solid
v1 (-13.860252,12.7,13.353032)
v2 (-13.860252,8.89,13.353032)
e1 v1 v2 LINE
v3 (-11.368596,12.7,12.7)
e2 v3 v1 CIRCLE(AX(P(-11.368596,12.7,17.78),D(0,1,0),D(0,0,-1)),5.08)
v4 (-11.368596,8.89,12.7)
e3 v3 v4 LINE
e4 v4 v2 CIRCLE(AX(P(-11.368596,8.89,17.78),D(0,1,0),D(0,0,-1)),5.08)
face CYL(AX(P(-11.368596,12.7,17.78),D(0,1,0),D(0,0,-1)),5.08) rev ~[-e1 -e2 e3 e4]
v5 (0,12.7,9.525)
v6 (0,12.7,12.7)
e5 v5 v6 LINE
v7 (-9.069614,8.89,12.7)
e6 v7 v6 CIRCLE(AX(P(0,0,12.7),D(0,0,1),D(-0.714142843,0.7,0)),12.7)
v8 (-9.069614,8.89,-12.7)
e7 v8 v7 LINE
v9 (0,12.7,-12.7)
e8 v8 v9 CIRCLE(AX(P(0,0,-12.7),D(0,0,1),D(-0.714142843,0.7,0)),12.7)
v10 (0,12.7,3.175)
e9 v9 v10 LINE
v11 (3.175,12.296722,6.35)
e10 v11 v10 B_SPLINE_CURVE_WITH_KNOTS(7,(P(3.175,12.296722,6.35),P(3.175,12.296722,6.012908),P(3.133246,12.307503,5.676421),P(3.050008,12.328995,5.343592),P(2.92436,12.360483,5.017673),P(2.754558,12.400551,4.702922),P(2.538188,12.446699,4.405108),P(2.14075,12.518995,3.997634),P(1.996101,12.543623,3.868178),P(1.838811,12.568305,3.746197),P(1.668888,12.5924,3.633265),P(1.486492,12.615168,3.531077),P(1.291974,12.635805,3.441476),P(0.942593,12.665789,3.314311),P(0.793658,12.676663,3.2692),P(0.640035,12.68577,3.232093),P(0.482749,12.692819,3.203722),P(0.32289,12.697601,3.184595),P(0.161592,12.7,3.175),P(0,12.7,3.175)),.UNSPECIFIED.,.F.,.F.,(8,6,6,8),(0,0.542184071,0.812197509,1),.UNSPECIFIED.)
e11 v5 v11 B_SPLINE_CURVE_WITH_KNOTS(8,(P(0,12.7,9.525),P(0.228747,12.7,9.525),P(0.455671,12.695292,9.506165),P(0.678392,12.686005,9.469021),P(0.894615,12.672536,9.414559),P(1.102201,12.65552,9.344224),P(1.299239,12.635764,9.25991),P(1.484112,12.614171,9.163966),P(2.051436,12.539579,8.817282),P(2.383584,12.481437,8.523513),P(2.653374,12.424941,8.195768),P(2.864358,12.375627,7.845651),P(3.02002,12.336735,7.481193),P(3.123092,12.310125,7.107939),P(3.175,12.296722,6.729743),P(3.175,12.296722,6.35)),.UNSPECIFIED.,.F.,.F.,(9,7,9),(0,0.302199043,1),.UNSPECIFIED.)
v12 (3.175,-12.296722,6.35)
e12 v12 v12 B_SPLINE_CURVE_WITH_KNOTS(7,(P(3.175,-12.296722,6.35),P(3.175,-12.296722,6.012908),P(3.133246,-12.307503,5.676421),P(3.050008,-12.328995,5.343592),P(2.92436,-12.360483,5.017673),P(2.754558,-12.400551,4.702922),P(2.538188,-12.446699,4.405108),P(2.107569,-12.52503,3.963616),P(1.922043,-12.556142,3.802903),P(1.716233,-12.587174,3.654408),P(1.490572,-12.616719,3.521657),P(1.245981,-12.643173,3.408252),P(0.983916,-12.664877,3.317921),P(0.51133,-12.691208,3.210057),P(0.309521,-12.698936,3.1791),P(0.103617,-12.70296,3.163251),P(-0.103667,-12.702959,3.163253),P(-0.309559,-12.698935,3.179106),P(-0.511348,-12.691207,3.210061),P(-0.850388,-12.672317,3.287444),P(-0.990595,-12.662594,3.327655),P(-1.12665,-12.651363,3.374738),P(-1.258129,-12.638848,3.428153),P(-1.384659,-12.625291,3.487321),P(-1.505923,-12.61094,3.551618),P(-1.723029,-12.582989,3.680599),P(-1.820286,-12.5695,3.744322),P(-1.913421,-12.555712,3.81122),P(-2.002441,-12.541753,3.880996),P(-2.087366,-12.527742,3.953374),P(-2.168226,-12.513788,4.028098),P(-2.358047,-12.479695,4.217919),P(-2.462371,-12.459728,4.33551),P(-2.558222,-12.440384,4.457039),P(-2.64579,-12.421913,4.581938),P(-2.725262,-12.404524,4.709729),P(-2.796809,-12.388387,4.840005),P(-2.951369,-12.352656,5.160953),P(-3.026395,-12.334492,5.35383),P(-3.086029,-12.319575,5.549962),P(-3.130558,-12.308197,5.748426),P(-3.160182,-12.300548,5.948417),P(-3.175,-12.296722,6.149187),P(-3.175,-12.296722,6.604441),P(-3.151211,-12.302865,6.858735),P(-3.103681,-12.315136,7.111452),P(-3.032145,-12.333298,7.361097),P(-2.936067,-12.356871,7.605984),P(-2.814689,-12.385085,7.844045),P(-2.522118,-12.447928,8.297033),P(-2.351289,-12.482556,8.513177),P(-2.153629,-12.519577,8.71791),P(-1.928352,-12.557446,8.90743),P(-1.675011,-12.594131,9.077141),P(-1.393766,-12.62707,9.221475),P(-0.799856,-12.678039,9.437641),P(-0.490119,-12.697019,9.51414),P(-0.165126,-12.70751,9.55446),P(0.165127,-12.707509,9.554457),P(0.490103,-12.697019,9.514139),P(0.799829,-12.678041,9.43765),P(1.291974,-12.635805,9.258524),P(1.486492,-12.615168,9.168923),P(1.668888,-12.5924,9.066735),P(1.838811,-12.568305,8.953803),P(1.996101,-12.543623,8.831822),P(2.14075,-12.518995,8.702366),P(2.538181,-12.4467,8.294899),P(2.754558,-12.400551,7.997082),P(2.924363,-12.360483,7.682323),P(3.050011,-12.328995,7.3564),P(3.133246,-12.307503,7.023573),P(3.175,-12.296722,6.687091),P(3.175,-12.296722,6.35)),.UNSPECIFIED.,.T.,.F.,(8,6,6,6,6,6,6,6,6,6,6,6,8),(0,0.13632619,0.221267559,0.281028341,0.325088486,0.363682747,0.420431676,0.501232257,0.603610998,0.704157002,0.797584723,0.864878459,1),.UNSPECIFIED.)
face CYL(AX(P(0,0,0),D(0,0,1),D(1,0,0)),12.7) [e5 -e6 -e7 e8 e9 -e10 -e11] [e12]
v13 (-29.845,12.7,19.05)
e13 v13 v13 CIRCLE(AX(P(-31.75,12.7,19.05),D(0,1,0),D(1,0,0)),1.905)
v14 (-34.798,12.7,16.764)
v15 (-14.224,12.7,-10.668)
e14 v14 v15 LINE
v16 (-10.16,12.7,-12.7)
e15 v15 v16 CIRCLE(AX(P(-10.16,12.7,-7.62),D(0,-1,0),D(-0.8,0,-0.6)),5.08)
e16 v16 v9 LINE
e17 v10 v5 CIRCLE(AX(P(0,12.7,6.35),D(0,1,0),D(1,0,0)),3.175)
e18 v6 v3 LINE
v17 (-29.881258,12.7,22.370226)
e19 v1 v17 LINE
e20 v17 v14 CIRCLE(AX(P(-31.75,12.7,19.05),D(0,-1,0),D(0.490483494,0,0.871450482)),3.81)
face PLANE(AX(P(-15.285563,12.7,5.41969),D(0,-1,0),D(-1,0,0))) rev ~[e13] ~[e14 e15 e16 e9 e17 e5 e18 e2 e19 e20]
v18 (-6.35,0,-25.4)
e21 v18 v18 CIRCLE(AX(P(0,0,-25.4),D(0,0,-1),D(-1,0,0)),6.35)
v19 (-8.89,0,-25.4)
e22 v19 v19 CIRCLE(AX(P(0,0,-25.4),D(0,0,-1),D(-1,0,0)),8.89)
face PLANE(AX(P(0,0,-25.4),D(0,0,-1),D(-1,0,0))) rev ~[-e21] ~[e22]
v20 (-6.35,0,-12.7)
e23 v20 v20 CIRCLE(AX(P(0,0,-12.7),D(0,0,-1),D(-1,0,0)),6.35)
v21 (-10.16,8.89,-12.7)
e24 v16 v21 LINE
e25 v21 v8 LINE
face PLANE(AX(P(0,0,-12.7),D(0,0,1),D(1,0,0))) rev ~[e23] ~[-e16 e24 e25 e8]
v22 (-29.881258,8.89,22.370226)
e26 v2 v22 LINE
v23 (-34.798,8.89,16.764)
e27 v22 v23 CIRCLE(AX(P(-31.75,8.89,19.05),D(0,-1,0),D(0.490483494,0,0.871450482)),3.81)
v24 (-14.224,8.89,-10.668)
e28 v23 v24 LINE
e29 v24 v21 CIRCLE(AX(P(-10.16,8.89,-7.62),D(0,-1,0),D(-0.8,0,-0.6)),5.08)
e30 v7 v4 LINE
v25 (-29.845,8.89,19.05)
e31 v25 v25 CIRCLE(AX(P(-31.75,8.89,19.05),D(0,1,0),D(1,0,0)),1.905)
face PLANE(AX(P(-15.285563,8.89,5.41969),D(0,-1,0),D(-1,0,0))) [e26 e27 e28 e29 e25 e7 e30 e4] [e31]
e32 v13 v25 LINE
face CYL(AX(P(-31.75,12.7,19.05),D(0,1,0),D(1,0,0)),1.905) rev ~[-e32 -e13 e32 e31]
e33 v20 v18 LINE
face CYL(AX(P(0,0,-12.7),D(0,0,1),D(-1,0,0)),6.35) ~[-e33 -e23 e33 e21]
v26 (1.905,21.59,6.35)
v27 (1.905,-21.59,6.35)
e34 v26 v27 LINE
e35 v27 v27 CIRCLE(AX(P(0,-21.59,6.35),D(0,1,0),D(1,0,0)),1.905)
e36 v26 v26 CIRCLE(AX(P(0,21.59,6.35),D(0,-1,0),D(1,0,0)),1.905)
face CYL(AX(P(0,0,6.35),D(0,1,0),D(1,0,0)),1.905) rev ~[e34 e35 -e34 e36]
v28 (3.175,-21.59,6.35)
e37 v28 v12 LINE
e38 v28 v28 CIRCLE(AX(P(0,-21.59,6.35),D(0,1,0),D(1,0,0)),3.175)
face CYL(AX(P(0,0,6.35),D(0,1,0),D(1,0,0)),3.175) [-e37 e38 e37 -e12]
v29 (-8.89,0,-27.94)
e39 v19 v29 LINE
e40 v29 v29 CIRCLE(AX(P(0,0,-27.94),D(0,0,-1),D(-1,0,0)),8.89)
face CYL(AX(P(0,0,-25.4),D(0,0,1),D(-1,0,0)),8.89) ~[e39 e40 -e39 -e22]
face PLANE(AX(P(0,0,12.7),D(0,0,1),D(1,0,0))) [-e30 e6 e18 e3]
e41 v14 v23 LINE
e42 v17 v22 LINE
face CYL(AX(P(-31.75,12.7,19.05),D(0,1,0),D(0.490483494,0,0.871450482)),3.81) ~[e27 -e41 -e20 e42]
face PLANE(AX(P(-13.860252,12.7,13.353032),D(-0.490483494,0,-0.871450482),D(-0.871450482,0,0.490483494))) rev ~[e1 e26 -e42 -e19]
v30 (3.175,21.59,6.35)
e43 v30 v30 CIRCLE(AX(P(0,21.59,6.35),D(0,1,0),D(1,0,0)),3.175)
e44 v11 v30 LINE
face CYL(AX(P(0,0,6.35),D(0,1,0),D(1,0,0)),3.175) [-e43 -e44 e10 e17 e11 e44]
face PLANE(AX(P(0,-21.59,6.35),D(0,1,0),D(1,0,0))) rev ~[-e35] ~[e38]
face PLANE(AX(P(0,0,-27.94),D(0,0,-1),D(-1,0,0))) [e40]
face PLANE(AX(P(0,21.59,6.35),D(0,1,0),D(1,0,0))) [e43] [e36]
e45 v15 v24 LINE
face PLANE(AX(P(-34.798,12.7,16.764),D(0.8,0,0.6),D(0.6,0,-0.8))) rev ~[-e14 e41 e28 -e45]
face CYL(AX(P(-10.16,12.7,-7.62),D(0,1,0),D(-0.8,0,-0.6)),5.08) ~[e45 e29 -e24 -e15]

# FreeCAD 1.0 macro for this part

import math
import FreeCAD as App
import Part
import Sketcher

V = App.Vector
Q = App.Units.Quantity

doc = App.newDocument("Part")
body = doc.addObject("PartDesign::Body", "Body")

sketch1 = body.newObject("Sketcher::SketchObject", "Sketch")
sketch1.AttachmentSupport = (doc.getObject("XY_Plane"), [""])
sketch1.MapMode = "FlatFace"
sketch1.addGeometry(Part.Circle(V(0, 0, 0), V(0, 0, 1), 12.7), False)
sketch1.addConstraint([
    Sketcher.Constraint("Coincident", 0, 3, -1, 1),
    Sketcher.Constraint("Diameter", 0, Q("1 in")),
])
pad1 = body.newObject("PartDesign::Pad", "Pad")
pad1.Profile = sketch1
pad1.Length = Q("1 in")
pad1.Midplane = True

sketch2 = body.newObject("Sketcher::SketchObject", "Sketch001")
sketch2.AttachmentSupport = (doc.getObject("XZ_Plane"), [""])
sketch2.MapMode = "FlatFace"
sketch2.AttachmentOffset = App.Placement(V(0, 0, -0.5 * 25.4), App.Rotation())
sketch2.addGeometry([
    Part.LineSegment(V(0, 12.7, 0), V(0, -12.7, 0)),
    Part.LineSegment(V(0, -12.7, 0), V(-10.16, -12.7, 0)),
    Part.ArcOfCircle(Part.Circle(V(-10.16, -7.62, 0), V(0, 0, 1), 5.08), math.radians(-143.130102), math.radians(-90)),
    Part.LineSegment(V(-14.224, -10.668, 0), V(-34.798, 16.764, 0)),
    Part.ArcOfCircle(Part.Circle(V(-31.75, 19.05, 0), V(0, 0, 1), 3.81), math.radians(60.627635), math.radians(216.869898)),
    Part.LineSegment(V(-29.881258, 22.370226, 0), V(-13.860252, 13.353032, 0)),
    Part.ArcOfCircle(Part.Circle(V(-11.368596, 17.78, 0), V(0, 0, 1), 5.08), math.radians(-119.372365), math.radians(-90)),
    Part.LineSegment(V(-11.368596, 12.7, 0), V(0, 12.7, 0)),
    Part.Circle(V(-31.75, 19.05, 0), V(0, 0, 1), 1.905),
], False)
sketch2.addConstraint([
    Sketcher.Constraint("Coincident", 0, 2, 1, 1),
    Sketcher.Constraint("Tangent", 1, 2, 2, 2),
    Sketcher.Constraint("Tangent", 2, 1, 3, 1),
    Sketcher.Constraint("Tangent", 3, 2, 4, 2),
    Sketcher.Constraint("Tangent", 4, 1, 5, 1),
    Sketcher.Constraint("Tangent", 5, 2, 6, 1),
    Sketcher.Constraint("Tangent", 6, 2, 7, 1),
    Sketcher.Constraint("Coincident", 7, 2, 0, 1),
    Sketcher.Constraint("Vertical", 0),
    Sketcher.Constraint("Horizontal", 1),
    Sketcher.Constraint("Horizontal", 7),
    Sketcher.Constraint("Coincident", 8, 3, 4, 3),
    Sketcher.Constraint("Equal", 2, 6),
    Sketcher.Constraint("Symmetric", 0, 2, 7, 2, -1, 1),
    Sketcher.Constraint("Radius", 2, Q("0.2 in")),
    Sketcher.Constraint("Diameter", 8, Q("0.15 in")),
    Sketcher.Constraint("DistanceY", 0, 2, 0, 1, Q("1 in")),
    Sketcher.Constraint("Radius", 4, Q("0.15 in")),
    Sketcher.Constraint("DistanceX", 1, 2, 1, 1, Q("0.4 in")),
    Sketcher.Constraint("Distance", 3, Q("1.35 in")),
    Sketcher.Constraint("DistanceX", 4, 3, -1, 1, Q("1.25 in")),
    Sketcher.Constraint("Distance", 5, 18.384298),
])
pad2 = body.newObject("PartDesign::Pad", "Pad001")
pad2.Profile = sketch2
pad2.Length = Q("0.15 in")

sketch3 = body.newObject("Sketcher::SketchObject", "Sketch002")
sketch3.AttachmentSupport = (doc.getObject("XY_Plane"), [""])
sketch3.MapMode = "FlatFace"
sketch3.AttachmentOffset = App.Placement(V(0, 0, -0.5 * 25.4), App.Rotation())
sketch3.addGeometry(Part.Circle(V(0, 0, 0), V(0, 0, 1), 6.35), False)
sketch3.addConstraint([
    Sketcher.Constraint("Coincident", 0, 3, -1, 1),
    Sketcher.Constraint("Diameter", 0, Q("0.5 in")),
])
pad3 = body.newObject("PartDesign::Pad", "Pad002")
pad3.Profile = sketch3
pad3.Length = Q("0.5 in")
pad3.Reversed = True

sketch4 = body.newObject("Sketcher::SketchObject", "Sketch003")
sketch4.AttachmentSupport = (doc.getObject("XY_Plane"), [""])
sketch4.MapMode = "FlatFace"
sketch4.AttachmentOffset = App.Placement(V(0, 0, -1 * 25.4), App.Rotation())
sketch4.addGeometry(Part.Circle(V(0, 0, 0), V(0, 0, 1), 8.89), False)
sketch4.addConstraint([
    Sketcher.Constraint("Coincident", 0, 3, -1, 1),
    Sketcher.Constraint("Diameter", 0, Q("0.7 in")),
])
pad4 = body.newObject("PartDesign::Pad", "Pad003")
pad4.Profile = sketch4
pad4.Length = Q("0.1 in")
pad4.Reversed = True

sketch5 = body.newObject("Sketcher::SketchObject", "Sketch004")
sketch5.AttachmentSupport = (doc.getObject("XZ_Plane"), [""])
sketch5.MapMode = "FlatFace"
sketch5.addGeometry(Part.Circle(V(0, 6.35, 0), V(0, 0, 1), 3.175), False)
sketch5.addConstraint([
    Sketcher.Constraint("PointOnObject", 0, 3, -2),
    Sketcher.Constraint("Diameter", 0, Q("0.25 in")),
    Sketcher.Constraint("DistanceY", -1, 1, 0, 3, Q("0.25 in")),
])
pad5 = body.newObject("PartDesign::Pad", "Pad004")
pad5.Profile = sketch5
pad5.Length = Q("1.7 in")
pad5.Midplane = True

sketch6 = body.newObject("Sketcher::SketchObject", "Sketch005")
sketch6.AttachmentSupport = (doc.getObject("XZ_Plane"), [""])
sketch6.MapMode = "FlatFace"
sketch6.addGeometry(Part.Circle(V(0, 6.35, 0), V(0, 0, 1), 1.905), False)
sketch6.addConstraint([
    Sketcher.Constraint("PointOnObject", 0, 3, -2),
    Sketcher.Constraint("Diameter", 0, Q("0.15 in")),
    Sketcher.Constraint("DistanceY", -1, 1, 0, 3, Q("0.25 in")),
])
pocket1 = body.newObject("PartDesign::Pocket", "Pocket")
pocket1.Profile = sketch6
pocket1.Type = "ThroughAll"
pocket1.Midplane = True

doc.recompute()
